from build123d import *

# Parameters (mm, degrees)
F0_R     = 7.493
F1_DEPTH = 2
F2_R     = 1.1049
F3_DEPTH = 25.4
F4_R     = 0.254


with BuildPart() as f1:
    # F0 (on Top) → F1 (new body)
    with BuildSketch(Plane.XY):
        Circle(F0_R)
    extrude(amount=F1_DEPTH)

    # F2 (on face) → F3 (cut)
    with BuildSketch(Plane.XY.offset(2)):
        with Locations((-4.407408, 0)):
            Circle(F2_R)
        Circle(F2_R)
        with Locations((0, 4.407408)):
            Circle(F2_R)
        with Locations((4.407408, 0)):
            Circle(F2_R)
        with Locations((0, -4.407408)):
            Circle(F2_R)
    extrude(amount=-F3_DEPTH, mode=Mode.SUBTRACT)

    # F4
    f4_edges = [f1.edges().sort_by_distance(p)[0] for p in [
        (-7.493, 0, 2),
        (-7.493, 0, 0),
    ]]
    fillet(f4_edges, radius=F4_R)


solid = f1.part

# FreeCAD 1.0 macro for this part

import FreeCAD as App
import Part
import Sketcher
from FreeCAD import Vector
Q = App.Units.Quantity


def edges_at(feature, points):
    """Names of the edges that pass closest to the given points."""
    edges = feature.Shape.Edges
    near = lambda p: min(range(len(edges)), key=lambda i: edges[i].distToShape(Part.Vertex(*p))[0])
    return sorted({f"Edge{near(p) + 1}" for p in points})

doc = App.newDocument("Part")
body = doc.addObject("PartDesign::Body", "Body")

sketch1 = body.newObject("Sketcher::SketchObject", "Sketch")
sketch1.AttachmentSupport = (doc.getObject("XY_Plane"), [""])
sketch1.MapMode = "FlatFace"
sketch1.addGeometry(Part.Circle(Vector(0, 0, 0), Vector(0, 0, 1), 7.493), False)
sketch1.addConstraint(Sketcher.Constraint("Coincident", 0, 3, -1, 1))
sketch1.addConstraint(Sketcher.Constraint("Diameter", 0, Q("0.59 in")))
pad1 = body.newObject("PartDesign::Pad", "Pad")
pad1.Profile = sketch1
pad1.Length = 2

sketch2 = body.newObject("Sketcher::SketchObject", "Sketch001")
sketch2.AttachmentSupport = (doc.getObject("XY_Plane"), [""])
sketch2.MapMode = "FlatFace"
sketch2.AttachmentOffset = App.Placement(Vector(0, 0, 2), App.Rotation())
sketch2.addGeometry(Part.Circle(Vector(-4.407408, 0, 0), Vector(0, 0, 1), 1.1049), False)
sketch2.addGeometry(Part.Circle(Vector(0, 0, 0), Vector(0, 0, 1), 1.1049), False)
sketch2.addGeometry(Part.Circle(Vector(0, 4.407408, 0), Vector(0, 0, 1), 1.1049), False)
sketch2.addGeometry(Part.Circle(Vector(4.407408, 0, 0), Vector(0, 0, 1), 1.1049), False)
sketch2.addGeometry(Part.Circle(Vector(0, -4.407408, 0), Vector(0, 0, 1), 1.1049), False)
sketch2.addConstraint(Sketcher.Constraint("Coincident", 1, 3, -1, 1))
sketch2.addConstraint(Sketcher.Constraint("Equal", 0, 1))
sketch2.addConstraint(Sketcher.Constraint("Equal", 1, 2))
sketch2.addConstraint(Sketcher.Constraint("Equal", 2, 3))
sketch2.addConstraint(Sketcher.Constraint("Equal", 3, 4))
sketch2.addConstraint(Sketcher.Constraint("Symmetric", 0, 3, 3, 3, -1, 1))
sketch2.addConstraint(Sketcher.Constraint("Symmetric", 2, 3, 4, 3, -1, 1))
sketch2.addConstraint(Sketcher.Constraint("PointOnObject", 0, 3, -1))
sketch2.addConstraint(Sketcher.Constraint("PointOnObject", 2, 3, -2))
sketch2.addConstraint(Sketcher.Constraint("Diameter", 0, Q("0.087 in")))
sketch2.addConstraint(Sketcher.Constraint("DistanceX", 0, 3, -1, 1, Q("4.407408 mm")))
sketch2.addConstraint(Sketcher.Constraint("DistanceY", -1, 1, 2, 3, Q("4.407408 mm")))
pocket1 = body.newObject("PartDesign::Pocket", "Pocket")
pocket1.Profile = sketch2
pocket1.Length = Q("1 in")
doc.recompute()

fillet = body.newObject("PartDesign::Fillet", "Fillet")
fillet.Base = (pocket1, edges_at(pocket1, [(-7.493, 0, 2), (-7.493, 0, 0)]))
fillet.Radius = Q("0.01 in")

doc.recompute()
